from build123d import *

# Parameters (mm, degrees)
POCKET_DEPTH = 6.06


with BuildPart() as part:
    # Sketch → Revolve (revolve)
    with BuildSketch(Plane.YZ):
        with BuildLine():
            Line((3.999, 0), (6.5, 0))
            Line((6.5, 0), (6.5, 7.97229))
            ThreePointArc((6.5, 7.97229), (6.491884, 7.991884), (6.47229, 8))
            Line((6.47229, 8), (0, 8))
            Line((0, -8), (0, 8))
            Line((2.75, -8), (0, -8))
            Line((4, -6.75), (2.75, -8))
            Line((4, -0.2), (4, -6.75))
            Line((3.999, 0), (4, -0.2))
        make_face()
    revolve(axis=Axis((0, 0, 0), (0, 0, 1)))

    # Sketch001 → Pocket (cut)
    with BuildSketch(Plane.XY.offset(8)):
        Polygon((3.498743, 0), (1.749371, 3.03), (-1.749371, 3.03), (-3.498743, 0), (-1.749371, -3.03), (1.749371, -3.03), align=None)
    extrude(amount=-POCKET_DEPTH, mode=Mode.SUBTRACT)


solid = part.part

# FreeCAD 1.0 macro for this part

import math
import FreeCAD as App
import Part
import Sketcher
from FreeCAD import Vector
Q = App.Units.Quantity


def add_polygon(sketch, points):
    """Adds a closed chain of lines whose ends are joined by coincident constraints."""
    first, n = sketch.GeometryCount, len(points)
    for a, b in zip(points, points[1:] + points[:1]):
        sketch.addGeometry(Part.LineSegment(App.Vector(*a, 0), App.Vector(*b, 0)), False)
    for i in range(n):
        sketch.addConstraint(Sketcher.Constraint("Coincident", first + i, 2, first + (i + 1) % n, 1))

doc = App.newDocument("Part")
params = doc.addObject("Spreadsheet::Sheet", "Params")
for row, (alias, value) in enumerate([
    ("sketch1_height", "16 mm"),
    ("sketch1_width", "2.75 mm"),
    ("sketch1_height2", "6.55 mm"),
    ("revolution_angle", "360 deg"),
    ("pocket1_length", "6.06 mm"),
], start=1):
    params.set(f"A{row}", alias)
    params.set(f"B{row}", "=" + value)
    params.setAlias(f"B{row}", alias)

body = doc.addObject("PartDesign::Body", "Body")

sketch1 = body.newObject("Sketcher::SketchObject", "Sketch")
sketch1.AttachmentSupport = (doc.getObject("YZ_Plane"), [""])
sketch1.MapMode = "FlatFace"
sketch1.addGeometry([
    Part.LineSegment(Vector(3.999, 0, 0), Vector(6.5, 0, 0)),
    Part.LineSegment(Vector(6.5, 0, 0), Vector(6.5, 7.972, 0)),
    Part.ArcOfCircle(Part.Circle(Vector(6.472, 7.972, 0), Vector(0, 0, 1), 0.028), math.radians(0), math.radians(90)),
    Part.LineSegment(Vector(6.472, 8, 0), Vector(0, 8, 0)),
    Part.LineSegment(Vector(0, 8, 0), Vector(0, -8, 0)),
    Part.LineSegment(Vector(0, -8, 0), Vector(2.75, -8, 0)),
    Part.LineSegment(Vector(2.75, -8, 0), Vector(4, -6.75, 0)),
    Part.LineSegment(Vector(4, -6.75, 0), Vector(4, -0.2, 0)),
    Part.LineSegment(Vector(4, -0.2, 0), Vector(3.999, 0, 0)),
], False)
sketch1.addConstraint([
    Sketcher.Constraint("Coincident", 0, 2, 1, 1),
    Sketcher.Constraint("Coincident", 1, 2, 2, 1),
    Sketcher.Constraint("Coincident", 2, 2, 3, 1),
    Sketcher.Constraint("Coincident", 3, 2, 4, 1),
    Sketcher.Constraint("Coincident", 4, 2, 5, 1),
    Sketcher.Constraint("Coincident", 5, 2, 6, 1),
    Sketcher.Constraint("Coincident", 6, 2, 7, 1),
    Sketcher.Constraint("Coincident", 7, 2, 8, 1),
    Sketcher.Constraint("Coincident", 8, 2, 0, 1),
    Sketcher.Constraint("Horizontal", 0),
    Sketcher.Constraint("Vertical", 1),
    Sketcher.Constraint("Horizontal", 3),
    Sketcher.Constraint("Vertical", 4),
    Sketcher.Constraint("Horizontal", 5),
    Sketcher.Constraint("Vertical", 7),
    Sketcher.Constraint("Symmetric", 3, 2, 4, 2, -1, 1),
    Sketcher.Constraint("PointOnObject", 0, 2, -1),
    Sketcher.Constraint("Horizontal", 2, 3, 1, 2),
    Sketcher.Constraint("DistanceY", 4, 2, 4, 1, Q("16 mm")),
    Sketcher.Constraint("Angle", 6, Q("45 deg")),
    Sketcher.Constraint("DistanceX", -1, 1, 6, 2, Q("4 mm")),
    Sketcher.Constraint("DistanceX", 5, 1, 5, 2, Q("2.75 mm")),
    Sketcher.Constraint("DistanceY", 7, 1, 7, 2, Q("6.55 mm")),
    Sketcher.Constraint("DistanceX", -1, 1, 0, 2, Q("6.5 mm")),
    Sketcher.Constraint("DistanceX", 0, 1, 0, 2, Q("2.501 mm")),
    Sketcher.Constraint("Radius", 2, Q("0.02771 mm")),
    Sketcher.Constraint("DistanceX", 3, 2, 3, 1, Q("6.47229 mm")),
])
sketch1.setExpression("Constraints[18]", "Params.sketch1_height")
sketch1.setExpression("Constraints[21]", "Params.sketch1_width")
sketch1.setExpression("Constraints[22]", "Params.sketch1_height2")
revolution = body.newObject("PartDesign::Revolution", "Revolution")
revolution.Profile = sketch1
revolution.ReferenceAxis = (sketch1, ["V_Axis"])
revolution.setExpression("Angle", "Params.revolution_angle")

sketch2 = body.newObject("Sketcher::SketchObject", "Sketch001")
sketch2.AttachmentSupport = (doc.getObject("XY_Plane"), [""])
sketch2.MapMode = "FlatFace"
sketch2.AttachmentOffset = App.Placement(Vector(0, 0, 8), App.Rotation())
add_polygon(sketch2, [(3.5, 0), (1.7, 3), (-1.7, 3), (-3.5, 0), (-1.7, -3), (1.7, -3)])
sketch2.addConstraint([
    Sketcher.Constraint("Horizontal", 1),
    Sketcher.Constraint("Horizontal", 4),
    Sketcher.Constraint("Symmetric", 0, 2, 3, 2, -1, 1),
    Sketcher.Constraint("Symmetric", 2, 2, 5, 2, -1, 1),
    Sketcher.Constraint("PointOnObject", 2, 2, -1),
    Sketcher.Constraint("Parallel", 2, 5),
    Sketcher.Constraint("Vertical", 1, 2, 3, 2),
    Sketcher.Constraint("Angle", 0, Q("120.00001 deg")),
    Sketcher.Constraint("DistanceY", -1, 1, 0, 2, Q("3.03 mm")),
    Sketcher.Constraint("DistanceX", 1, 2, 1, 1, Q("3.498742 mm")),
])
pocket1 = body.newObject("PartDesign::Pocket", "Pocket")
pocket1.Profile = sketch2
pocket1.setExpression("Length", "Params.pocket1_length")

doc.recompute()
